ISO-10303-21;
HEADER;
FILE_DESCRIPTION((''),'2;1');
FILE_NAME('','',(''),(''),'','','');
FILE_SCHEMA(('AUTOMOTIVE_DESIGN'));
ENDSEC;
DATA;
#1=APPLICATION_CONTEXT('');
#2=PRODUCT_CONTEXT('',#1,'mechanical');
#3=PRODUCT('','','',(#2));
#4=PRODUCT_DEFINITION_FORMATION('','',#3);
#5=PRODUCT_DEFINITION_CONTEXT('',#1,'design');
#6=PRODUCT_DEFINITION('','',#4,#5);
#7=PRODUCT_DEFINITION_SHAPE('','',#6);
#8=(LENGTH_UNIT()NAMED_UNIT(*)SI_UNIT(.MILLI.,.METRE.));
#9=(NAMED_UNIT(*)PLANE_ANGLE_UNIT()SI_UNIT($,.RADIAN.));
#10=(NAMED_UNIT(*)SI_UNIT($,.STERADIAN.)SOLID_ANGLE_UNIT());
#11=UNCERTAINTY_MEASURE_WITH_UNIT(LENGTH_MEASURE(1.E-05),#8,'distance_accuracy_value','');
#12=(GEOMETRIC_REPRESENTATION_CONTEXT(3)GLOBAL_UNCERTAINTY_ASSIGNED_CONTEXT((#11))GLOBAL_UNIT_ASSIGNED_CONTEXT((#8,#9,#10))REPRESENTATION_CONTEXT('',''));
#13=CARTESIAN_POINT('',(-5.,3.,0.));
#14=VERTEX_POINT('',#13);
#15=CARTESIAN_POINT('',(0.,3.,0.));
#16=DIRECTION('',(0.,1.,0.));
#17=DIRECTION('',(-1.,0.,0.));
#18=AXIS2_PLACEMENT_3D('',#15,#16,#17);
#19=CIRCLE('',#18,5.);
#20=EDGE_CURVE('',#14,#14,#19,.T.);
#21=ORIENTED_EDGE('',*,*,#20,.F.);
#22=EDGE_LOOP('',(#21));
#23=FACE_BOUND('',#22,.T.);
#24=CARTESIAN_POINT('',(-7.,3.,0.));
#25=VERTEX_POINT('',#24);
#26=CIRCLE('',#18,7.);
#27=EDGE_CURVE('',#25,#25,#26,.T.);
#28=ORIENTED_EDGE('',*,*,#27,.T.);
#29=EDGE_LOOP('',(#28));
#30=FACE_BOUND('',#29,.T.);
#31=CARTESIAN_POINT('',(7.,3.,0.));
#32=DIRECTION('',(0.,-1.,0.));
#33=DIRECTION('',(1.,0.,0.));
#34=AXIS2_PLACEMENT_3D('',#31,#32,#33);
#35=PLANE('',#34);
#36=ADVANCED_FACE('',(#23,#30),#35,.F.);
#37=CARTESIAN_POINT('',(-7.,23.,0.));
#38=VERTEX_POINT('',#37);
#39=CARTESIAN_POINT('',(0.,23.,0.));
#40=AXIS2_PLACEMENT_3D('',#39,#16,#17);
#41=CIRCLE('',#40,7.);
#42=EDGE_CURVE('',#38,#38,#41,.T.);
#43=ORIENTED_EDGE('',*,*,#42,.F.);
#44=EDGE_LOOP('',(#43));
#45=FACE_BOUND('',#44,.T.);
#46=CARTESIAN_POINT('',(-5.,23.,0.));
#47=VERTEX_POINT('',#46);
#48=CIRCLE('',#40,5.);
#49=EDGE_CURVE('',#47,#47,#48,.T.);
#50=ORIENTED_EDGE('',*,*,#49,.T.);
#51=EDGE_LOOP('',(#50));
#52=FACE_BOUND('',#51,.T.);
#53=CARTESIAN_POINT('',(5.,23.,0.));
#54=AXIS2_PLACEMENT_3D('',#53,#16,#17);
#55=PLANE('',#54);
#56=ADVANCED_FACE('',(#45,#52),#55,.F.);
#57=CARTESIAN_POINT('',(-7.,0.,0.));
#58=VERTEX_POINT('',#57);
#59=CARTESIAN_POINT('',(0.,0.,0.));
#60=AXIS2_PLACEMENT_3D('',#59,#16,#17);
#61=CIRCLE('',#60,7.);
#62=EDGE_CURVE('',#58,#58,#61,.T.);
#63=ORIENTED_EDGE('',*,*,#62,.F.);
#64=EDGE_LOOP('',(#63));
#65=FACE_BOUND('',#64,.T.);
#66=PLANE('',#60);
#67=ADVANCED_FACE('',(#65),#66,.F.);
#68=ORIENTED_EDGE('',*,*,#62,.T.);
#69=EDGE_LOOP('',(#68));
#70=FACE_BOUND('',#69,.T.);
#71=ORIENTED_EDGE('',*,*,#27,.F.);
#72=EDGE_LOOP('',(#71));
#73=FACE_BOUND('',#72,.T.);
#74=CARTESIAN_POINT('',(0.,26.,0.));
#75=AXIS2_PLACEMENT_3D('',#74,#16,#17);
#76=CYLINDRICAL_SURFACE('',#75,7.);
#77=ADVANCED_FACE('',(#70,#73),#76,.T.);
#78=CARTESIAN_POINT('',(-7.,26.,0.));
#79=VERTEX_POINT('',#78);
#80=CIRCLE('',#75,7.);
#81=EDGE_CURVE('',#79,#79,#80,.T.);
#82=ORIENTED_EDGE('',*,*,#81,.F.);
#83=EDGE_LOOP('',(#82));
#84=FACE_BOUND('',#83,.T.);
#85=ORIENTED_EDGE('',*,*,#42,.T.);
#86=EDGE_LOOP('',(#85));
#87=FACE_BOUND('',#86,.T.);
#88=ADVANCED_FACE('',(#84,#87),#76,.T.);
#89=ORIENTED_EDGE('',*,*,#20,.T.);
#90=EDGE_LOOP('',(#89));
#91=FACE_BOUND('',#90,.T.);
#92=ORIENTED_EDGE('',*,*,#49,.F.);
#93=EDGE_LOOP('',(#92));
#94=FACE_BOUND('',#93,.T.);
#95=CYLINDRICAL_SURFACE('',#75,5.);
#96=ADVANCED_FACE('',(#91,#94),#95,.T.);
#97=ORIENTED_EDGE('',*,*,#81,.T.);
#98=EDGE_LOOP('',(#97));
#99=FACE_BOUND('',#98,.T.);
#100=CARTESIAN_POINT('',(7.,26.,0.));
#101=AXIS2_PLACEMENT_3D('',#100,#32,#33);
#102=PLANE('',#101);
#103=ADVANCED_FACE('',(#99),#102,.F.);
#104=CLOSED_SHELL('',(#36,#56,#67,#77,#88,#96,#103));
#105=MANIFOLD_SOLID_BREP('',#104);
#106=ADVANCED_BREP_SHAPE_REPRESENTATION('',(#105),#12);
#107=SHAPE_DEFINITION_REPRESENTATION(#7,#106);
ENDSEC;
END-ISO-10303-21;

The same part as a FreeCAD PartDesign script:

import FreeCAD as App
import Part
import Sketcher


def add_polygon(sketch, points):
    """Adds a closed chain of lines whose ends are joined by coincident constraints."""
    first, n = sketch.GeometryCount, len(points)
    for a, b in zip(points, points[1:] + points[:1]):
        sketch.addGeometry(Part.LineSegment(App.Vector(*a, 0), App.Vector(*b, 0)), False)
    for i in range(n):
        sketch.addConstraint(Sketcher.Constraint("Coincident", first + i, 2, first + (i + 1) % n, 1))

doc = App.newDocument("Part")
body = doc.addObject("PartDesign::Body", "Body")

# Sketch on XY plane
sketch1 = body.newObject("Sketcher::SketchObject", "Sketch")
sketch1.AttachmentSupport = (doc.getObject("XY_Plane"), [""])
sketch1.MapMode = "FlatFace"
add_polygon(sketch1, [(0, 0), (7, 0), (7, 3), (5, 3), (5, 23), (7, 23), (7, 26), (0, 26)])  # lines 0-7
sketch1.addConstraint([
    Sketcher.Constraint("Horizontal", 0),
    Sketcher.Constraint("Vertical", 1),
    Sketcher.Constraint("Horizontal", 2),
    Sketcher.Constraint("Vertical", 3),
    Sketcher.Constraint("Horizontal", 4),
    Sketcher.Constraint("Vertical", 5),
    Sketcher.Constraint("Horizontal", 6),
    Sketcher.Constraint("Vertical", 7),
    Sketcher.Constraint("Coincident", 7, 2, -1, 1),
    Sketcher.Constraint("Vertical", 1, 2, 4, 2),
    Sketcher.Constraint("Equal", 1, 5),
    Sketcher.Constraint("DistanceX", 0, 1, 0, 2, 7.0),
    Sketcher.Constraint("DistanceX", 2, 2, 2, 1, 2.0),
    Sketcher.Constraint("DistanceY", 1, 1, 1, 2, 3.0),
    Sketcher.Constraint("DistanceY", 3, 1, 3, 2, 20.0),
])
revolution = body.newObject("PartDesign::Revolution", "Revolution")
revolution.Profile = sketch1
revolution.ReferenceAxis = (sketch1, ["V_Axis"])
revolution.Angle = 360

doc.recompute()
